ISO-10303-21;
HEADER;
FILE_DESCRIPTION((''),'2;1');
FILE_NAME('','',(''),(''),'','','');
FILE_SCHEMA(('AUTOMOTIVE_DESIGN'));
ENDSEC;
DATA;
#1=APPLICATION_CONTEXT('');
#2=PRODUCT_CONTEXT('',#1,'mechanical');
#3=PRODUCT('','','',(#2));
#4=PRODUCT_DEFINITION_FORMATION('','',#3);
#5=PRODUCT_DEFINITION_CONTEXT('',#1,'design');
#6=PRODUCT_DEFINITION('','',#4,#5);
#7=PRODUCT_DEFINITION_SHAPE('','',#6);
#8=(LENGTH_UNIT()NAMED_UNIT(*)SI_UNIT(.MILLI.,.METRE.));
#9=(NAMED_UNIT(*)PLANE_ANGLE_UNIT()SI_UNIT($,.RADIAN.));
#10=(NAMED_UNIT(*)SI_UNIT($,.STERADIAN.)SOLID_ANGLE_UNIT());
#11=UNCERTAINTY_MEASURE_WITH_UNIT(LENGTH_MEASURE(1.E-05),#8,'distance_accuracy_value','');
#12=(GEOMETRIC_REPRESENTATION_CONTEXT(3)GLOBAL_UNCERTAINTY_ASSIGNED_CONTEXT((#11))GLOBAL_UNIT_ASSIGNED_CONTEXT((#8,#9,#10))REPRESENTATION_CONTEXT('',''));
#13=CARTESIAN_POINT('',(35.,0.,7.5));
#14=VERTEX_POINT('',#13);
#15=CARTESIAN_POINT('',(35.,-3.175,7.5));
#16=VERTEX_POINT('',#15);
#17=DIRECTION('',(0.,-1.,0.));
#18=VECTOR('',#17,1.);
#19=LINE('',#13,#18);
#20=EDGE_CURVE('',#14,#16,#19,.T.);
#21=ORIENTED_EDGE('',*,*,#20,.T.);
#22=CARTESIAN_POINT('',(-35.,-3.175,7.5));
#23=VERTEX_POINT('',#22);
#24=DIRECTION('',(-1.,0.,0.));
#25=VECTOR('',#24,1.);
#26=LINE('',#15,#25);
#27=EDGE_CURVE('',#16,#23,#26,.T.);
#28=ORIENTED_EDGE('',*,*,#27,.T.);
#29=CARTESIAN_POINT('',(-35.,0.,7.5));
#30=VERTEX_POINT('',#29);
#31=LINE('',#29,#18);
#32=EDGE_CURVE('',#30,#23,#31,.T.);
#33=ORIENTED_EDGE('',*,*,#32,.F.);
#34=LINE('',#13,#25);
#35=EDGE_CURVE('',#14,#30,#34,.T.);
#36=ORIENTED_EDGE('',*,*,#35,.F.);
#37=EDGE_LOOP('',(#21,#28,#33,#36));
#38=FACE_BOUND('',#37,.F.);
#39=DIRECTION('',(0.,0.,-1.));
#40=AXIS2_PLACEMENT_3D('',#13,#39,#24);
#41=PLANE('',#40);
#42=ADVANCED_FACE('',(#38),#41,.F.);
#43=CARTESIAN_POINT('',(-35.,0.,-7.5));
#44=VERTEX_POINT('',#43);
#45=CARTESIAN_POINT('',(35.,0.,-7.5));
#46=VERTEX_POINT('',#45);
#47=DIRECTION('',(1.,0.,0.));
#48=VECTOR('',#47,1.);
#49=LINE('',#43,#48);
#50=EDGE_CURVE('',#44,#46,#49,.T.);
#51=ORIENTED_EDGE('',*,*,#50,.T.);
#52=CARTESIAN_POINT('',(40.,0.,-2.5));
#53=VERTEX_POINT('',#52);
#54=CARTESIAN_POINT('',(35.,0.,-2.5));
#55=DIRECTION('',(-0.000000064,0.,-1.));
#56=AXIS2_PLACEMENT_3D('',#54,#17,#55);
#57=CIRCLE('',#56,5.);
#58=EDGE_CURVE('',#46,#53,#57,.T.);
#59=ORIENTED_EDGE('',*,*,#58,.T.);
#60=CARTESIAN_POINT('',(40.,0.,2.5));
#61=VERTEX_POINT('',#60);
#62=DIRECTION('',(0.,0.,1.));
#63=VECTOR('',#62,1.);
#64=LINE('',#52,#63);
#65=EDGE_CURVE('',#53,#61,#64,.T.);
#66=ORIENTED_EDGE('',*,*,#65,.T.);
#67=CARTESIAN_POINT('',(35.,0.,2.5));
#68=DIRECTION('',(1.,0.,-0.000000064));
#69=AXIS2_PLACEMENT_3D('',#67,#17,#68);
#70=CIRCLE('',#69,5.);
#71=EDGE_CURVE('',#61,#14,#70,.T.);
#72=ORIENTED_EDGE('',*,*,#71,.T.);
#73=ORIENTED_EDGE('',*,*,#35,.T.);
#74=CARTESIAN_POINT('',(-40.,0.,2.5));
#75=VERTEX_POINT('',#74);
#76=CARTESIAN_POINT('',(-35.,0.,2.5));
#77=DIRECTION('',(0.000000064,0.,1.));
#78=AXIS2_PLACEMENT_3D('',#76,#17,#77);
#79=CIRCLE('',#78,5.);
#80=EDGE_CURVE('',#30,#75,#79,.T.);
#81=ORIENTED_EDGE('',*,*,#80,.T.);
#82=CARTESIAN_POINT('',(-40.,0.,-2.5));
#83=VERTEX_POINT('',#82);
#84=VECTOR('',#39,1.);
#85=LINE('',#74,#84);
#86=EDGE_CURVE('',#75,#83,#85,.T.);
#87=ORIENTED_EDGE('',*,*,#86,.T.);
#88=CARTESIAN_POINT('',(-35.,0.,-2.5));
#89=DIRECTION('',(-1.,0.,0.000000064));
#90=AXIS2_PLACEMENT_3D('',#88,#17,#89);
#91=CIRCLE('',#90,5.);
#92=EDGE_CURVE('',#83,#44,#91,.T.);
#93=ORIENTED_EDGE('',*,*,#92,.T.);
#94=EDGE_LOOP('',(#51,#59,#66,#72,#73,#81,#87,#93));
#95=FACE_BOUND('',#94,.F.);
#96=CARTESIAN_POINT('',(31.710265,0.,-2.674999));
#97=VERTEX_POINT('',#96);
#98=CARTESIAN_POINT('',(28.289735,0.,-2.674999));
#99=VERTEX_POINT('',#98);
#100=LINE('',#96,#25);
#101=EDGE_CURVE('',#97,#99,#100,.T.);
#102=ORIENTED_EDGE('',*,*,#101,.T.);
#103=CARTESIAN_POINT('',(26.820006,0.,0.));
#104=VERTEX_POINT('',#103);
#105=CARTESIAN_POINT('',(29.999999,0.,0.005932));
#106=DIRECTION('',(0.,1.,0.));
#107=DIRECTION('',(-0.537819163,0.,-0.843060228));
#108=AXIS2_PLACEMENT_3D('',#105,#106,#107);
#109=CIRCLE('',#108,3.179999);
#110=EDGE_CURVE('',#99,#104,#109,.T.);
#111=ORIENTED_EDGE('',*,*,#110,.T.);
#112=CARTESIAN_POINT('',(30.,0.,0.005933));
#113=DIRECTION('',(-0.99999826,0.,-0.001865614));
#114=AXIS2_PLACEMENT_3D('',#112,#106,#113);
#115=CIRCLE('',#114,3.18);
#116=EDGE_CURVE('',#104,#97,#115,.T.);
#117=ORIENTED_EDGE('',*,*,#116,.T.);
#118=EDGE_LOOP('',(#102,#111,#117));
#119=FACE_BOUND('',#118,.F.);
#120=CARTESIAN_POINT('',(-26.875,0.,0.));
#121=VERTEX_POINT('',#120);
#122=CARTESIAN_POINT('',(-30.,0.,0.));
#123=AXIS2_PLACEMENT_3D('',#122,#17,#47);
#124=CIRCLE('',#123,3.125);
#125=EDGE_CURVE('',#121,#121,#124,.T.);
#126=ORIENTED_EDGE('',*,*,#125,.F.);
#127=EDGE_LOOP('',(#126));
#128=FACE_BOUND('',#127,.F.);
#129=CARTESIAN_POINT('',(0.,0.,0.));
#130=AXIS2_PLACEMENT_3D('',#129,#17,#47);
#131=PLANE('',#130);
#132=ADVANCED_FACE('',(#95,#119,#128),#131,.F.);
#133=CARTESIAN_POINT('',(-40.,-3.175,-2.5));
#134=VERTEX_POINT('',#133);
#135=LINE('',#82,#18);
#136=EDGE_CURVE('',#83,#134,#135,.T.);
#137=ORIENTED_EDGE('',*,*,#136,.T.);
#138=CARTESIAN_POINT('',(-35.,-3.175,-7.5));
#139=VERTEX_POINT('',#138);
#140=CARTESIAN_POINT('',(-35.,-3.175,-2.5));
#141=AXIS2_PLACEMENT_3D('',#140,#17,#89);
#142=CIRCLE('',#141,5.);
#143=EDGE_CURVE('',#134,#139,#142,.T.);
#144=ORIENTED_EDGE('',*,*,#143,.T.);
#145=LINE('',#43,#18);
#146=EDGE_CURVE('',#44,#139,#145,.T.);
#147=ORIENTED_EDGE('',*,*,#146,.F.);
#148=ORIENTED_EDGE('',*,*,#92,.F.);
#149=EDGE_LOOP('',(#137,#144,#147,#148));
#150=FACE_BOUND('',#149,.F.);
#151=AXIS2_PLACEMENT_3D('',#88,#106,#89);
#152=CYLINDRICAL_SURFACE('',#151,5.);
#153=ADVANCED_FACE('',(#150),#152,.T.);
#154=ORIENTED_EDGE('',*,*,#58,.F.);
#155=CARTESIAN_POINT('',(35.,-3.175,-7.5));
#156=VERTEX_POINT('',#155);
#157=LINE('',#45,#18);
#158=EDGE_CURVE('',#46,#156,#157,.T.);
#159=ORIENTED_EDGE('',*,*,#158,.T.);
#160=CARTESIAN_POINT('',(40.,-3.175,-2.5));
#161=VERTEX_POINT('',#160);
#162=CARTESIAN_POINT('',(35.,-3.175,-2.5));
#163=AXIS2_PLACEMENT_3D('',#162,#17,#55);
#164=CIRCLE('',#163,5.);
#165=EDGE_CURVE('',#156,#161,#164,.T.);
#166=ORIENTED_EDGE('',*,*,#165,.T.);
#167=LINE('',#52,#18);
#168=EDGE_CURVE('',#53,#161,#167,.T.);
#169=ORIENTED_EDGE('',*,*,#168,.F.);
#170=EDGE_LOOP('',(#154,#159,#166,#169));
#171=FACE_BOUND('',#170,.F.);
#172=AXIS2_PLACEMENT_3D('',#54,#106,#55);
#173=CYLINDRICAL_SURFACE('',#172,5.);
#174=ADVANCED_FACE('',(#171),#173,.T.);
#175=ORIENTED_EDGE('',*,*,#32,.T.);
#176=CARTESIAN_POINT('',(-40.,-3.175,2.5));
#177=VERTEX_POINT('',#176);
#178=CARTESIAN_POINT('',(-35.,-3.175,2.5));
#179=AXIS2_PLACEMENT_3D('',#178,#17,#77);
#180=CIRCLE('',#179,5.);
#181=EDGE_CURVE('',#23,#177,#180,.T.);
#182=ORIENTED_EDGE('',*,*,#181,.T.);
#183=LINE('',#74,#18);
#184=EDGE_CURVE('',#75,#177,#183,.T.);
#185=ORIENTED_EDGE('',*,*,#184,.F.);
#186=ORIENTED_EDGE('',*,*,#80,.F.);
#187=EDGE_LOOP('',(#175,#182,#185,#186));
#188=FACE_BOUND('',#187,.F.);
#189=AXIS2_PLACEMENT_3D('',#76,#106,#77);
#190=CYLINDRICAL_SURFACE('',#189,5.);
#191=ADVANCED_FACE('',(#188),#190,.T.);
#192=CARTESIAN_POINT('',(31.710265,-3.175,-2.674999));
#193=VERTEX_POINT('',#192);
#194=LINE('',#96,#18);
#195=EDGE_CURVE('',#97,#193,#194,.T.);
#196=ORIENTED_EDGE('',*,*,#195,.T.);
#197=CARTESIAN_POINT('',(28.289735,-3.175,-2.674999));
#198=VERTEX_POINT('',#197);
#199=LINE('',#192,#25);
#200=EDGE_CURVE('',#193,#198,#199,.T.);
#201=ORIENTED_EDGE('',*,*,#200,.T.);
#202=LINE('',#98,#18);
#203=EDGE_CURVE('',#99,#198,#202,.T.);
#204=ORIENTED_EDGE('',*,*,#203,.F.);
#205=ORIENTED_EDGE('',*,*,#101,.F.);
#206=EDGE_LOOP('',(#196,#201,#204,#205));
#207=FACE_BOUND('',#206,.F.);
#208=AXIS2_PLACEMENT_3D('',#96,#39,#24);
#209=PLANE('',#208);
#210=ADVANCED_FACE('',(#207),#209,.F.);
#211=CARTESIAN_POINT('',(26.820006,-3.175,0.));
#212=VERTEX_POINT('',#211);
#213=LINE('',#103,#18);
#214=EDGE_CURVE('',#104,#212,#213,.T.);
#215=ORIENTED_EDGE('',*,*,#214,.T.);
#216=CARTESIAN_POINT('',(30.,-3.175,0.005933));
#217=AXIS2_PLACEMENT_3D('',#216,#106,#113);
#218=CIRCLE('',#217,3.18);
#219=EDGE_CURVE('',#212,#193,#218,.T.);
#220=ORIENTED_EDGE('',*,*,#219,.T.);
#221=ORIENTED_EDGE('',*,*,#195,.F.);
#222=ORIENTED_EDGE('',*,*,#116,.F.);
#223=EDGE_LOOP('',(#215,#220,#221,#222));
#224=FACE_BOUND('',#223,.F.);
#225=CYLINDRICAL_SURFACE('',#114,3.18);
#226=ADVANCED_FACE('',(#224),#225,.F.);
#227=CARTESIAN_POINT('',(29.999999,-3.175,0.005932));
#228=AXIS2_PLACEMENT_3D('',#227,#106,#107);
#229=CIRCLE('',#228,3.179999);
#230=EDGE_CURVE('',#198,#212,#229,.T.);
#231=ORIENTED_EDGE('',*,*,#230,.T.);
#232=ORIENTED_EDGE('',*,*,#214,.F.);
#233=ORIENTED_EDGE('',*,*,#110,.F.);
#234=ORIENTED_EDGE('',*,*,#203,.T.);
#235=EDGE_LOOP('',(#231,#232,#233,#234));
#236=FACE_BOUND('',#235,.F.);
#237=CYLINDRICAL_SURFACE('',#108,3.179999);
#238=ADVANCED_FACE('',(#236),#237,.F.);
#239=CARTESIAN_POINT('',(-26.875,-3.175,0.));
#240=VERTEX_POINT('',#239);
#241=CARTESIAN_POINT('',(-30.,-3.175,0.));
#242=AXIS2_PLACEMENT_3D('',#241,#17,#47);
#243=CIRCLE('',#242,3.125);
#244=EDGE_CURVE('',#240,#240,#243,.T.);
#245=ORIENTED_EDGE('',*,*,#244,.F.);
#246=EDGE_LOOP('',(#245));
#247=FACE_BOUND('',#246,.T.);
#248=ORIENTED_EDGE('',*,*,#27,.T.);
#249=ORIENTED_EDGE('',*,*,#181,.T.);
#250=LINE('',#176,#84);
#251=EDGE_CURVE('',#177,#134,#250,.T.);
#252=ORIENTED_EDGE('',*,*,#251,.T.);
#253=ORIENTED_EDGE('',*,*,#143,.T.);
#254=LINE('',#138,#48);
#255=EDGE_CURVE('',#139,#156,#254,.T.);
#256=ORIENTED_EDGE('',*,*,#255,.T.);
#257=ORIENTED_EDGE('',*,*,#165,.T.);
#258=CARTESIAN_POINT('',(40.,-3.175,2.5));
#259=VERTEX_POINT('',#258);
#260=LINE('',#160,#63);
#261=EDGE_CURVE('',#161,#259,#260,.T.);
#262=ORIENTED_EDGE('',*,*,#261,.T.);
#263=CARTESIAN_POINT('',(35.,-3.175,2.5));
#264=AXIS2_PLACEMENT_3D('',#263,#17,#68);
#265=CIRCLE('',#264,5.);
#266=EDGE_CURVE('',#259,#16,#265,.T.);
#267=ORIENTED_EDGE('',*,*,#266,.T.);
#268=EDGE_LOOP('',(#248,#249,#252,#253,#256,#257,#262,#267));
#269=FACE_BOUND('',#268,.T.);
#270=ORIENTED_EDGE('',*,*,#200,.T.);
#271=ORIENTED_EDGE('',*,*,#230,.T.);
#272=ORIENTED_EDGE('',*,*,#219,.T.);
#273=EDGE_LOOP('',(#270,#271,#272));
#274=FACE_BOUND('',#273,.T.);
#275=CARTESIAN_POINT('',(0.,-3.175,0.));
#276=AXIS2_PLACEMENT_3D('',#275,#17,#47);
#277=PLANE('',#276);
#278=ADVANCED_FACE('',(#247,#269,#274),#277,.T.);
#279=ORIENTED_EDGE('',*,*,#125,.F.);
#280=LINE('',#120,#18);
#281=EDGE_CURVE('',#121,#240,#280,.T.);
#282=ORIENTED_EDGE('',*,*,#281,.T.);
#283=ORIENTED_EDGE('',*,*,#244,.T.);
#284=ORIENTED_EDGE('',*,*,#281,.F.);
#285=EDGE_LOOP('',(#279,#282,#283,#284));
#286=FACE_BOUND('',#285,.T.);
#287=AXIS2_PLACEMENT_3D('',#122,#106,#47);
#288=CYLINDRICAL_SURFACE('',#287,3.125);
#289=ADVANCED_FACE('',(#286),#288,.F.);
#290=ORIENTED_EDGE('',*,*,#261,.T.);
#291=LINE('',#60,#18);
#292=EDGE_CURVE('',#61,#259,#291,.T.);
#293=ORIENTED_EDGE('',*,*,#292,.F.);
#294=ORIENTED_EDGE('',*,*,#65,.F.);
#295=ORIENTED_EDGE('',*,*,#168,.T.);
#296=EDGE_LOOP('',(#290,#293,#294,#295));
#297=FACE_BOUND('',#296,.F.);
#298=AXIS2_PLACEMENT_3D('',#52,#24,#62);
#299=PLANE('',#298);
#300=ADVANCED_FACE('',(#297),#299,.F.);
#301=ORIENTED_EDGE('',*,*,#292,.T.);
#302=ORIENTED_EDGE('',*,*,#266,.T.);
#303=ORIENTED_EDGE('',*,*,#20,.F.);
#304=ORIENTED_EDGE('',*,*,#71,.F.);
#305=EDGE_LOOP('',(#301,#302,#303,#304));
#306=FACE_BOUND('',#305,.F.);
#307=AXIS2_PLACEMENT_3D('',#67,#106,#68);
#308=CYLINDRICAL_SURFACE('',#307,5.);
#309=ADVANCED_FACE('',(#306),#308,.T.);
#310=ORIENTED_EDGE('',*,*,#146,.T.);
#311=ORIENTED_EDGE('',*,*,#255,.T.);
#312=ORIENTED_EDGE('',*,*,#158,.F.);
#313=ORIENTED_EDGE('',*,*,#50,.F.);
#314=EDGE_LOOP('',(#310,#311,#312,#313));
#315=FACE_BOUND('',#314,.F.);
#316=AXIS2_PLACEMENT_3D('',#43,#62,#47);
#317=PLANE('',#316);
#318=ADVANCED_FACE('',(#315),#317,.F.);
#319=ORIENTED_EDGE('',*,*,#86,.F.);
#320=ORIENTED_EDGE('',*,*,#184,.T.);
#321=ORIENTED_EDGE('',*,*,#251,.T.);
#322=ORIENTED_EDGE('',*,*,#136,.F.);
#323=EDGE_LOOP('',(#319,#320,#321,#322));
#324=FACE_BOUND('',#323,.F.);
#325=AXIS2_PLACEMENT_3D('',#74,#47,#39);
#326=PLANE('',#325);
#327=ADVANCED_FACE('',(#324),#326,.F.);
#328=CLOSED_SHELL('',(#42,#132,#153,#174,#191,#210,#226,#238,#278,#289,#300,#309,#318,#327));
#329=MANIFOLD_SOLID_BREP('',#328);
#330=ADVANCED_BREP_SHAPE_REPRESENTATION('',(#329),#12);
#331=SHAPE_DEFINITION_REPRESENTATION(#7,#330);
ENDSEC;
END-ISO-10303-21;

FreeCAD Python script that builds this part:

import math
import FreeCAD as App
import Part
import Sketcher

V = App.Vector
Q = App.Units.Quantity

doc = App.newDocument("Part")
params = doc.addObject("Spreadsheet::Sheet", "Params")
for row, (alias, value) in enumerate([
    ("sketch1_radius", "5 mm"),
    ("sketch1_diameter", "6.25 mm"),
    ("sketch1_width", "70 mm"),
    ("sketch1_height", "5 mm"),
    ("sketch1_radius2", "3.179999 mm"),
    ("pad1_length", "3.175 mm"),
], start=1):
    params.set(f"A{row}", alias)
    params.set(f"B{row}", "=" + value)
    params.setAlias(f"B{row}", alias)

body = doc.addObject("PartDesign::Body", "Body")

sketch1 = body.newObject("Sketcher::SketchObject", "Sketch")
sketch1.AttachmentSupport = (doc.getObject("XZ_Plane"), [""])
sketch1.MapMode = "FlatFace"
sketch1.addGeometry([
    Part.ArcOfCircle(Part.Circle(V(35, 2.5, 0), V(0, 0, 1), 5), math.radians(0), math.radians(90)),
    Part.LineSegment(V(35, 7.5, 0), V(-35, 7.5, 0)),
    Part.ArcOfCircle(Part.Circle(V(-35, 2.5, 0), V(0, 0, 1), 5), math.radians(90), math.radians(180)),
    Part.LineSegment(V(-40, 2.5, 0), V(-40, -2.5, 0)),
    Part.ArcOfCircle(Part.Circle(V(-35, -2.5, 0), V(0, 0, 1), 5), math.radians(180), math.radians(270)),
    Part.LineSegment(V(-35, -7.5, 0), V(35, -7.5, 0)),
    Part.ArcOfCircle(Part.Circle(V(35, -2.5, 0), V(0, 0, 1), 5), math.radians(-90), math.radians(0)),
    Part.LineSegment(V(40, -2.5, 0), V(40, 2.5, 0)),
    Part.Circle(V(-30, 0, 0), V(0, 0, 1), 3.1),
    Part.LineSegment(V(31.7, -2.7, 0), V(28.3, -2.7, 0)),
    Part.ArcOfCircle(Part.Circle(V(30, 0, 0), V(0, 0, 1), 3.2), math.radians(-180), math.radians(-123)),
    Part.ArcOfCircle(Part.Circle(V(30, 0, 0), V(0, 0, 1), 3.2), math.radians(-57), math.radians(180)),
], False)
sketch1.addConstraint([
    Sketcher.Constraint("Tangent", 0, 2, 1, 1),
    Sketcher.Constraint("Tangent", 1, 2, 2, 1),
    Sketcher.Constraint("Tangent", 2, 2, 3, 1),
    Sketcher.Constraint("Tangent", 3, 2, 4, 1),
    Sketcher.Constraint("Tangent", 4, 2, 5, 1),
    Sketcher.Constraint("Tangent", 5, 2, 6, 1),
    Sketcher.Constraint("Tangent", 6, 2, 7, 1),
    Sketcher.Constraint("Tangent", 7, 2, 0, 1),
    Sketcher.Constraint("Coincident", 9, 2, 10, 2),
    Sketcher.Constraint("Tangent", 10, 1, 11, 2),
    Sketcher.Constraint("Coincident", 11, 1, 9, 1),
    Sketcher.Constraint("Horizontal", 1),
    Sketcher.Constraint("Vertical", 3),
    Sketcher.Constraint("Horizontal", 5),
    Sketcher.Constraint("Vertical", 7),
    Sketcher.Constraint("Horizontal", 9),
    Sketcher.Constraint("Equal", 0, 2),
    Sketcher.Constraint("Equal", 2, 4),
    Sketcher.Constraint("Equal", 4, 6),
    Sketcher.Constraint("Equal", 10, 11),
    Sketcher.Constraint("Symmetric", 0, 3, 4, 3, -1, 1),
    Sketcher.Constraint("PointOnObject", 8, 3, -1),
    Sketcher.Constraint("PointOnObject", 10, 1, -1),
    Sketcher.Constraint("Radius", 0, Q("5 mm")),
    Sketcher.Constraint("Diameter", 8, Q("6.25 mm")),
    Sketcher.Constraint("DistanceX", 1, 2, 1, 1, Q("70 mm")),
    Sketcher.Constraint("DistanceY", 3, 2, 3, 1, Q("5 mm")),
    Sketcher.Constraint("Radius", 10, Q("3.179999 mm")),
    Sketcher.Constraint("DistanceX", 8, 3, -1, 1, Q("30 mm")),
    Sketcher.Constraint("DistanceX", -1, 1, 10, 3, Q("29.999999 mm")),
    Sketcher.Constraint("DistanceY", 9, 2, -1, 1, Q("2.674999 mm")),
    Sketcher.Constraint("DistanceX", 9, 2, 9, 1, Q("3.42053 mm")),
])
sketch1.setExpression("Constraints[23]", "Params.sketch1_radius")
sketch1.setExpression("Constraints[24]", "Params.sketch1_diameter")
sketch1.setExpression("Constraints[25]", "Params.sketch1_width")
sketch1.setExpression("Constraints[26]", "Params.sketch1_height")
sketch1.setExpression("Constraints[27]", "Params.sketch1_radius2")
pad1 = body.newObject("PartDesign::Pad", "Pad")
pad1.Profile = sketch1
pad1.setExpression("Length", "Params.pad1_length")

doc.recompute()
